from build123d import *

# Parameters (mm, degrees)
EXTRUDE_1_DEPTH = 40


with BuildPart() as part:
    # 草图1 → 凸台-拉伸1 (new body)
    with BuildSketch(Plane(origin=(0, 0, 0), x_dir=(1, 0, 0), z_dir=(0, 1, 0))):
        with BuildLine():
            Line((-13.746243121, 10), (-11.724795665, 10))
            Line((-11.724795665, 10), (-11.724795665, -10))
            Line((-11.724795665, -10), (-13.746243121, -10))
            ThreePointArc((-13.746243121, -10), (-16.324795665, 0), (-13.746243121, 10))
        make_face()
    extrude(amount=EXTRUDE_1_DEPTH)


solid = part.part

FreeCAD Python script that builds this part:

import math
import FreeCAD as App
import Part
import Sketcher
from FreeCAD import Vector
Q = App.Units.Quantity

doc = App.newDocument("Part")
body = doc.addObject("PartDesign::Body", "Body")

# Sketch on XZ plane
sketch1 = body.newObject("Sketcher::SketchObject", "Sketch")
sketch1.AttachmentSupport = (doc.getObject("XZ_Plane"), [""])
sketch1.MapMode = "FlatFace"
sketch1.addGeometry([
    Part.LineSegment(Vector(-11.7, -10, 0), Vector(-13.7, -10, 0)),
    Part.ArcOfCircle(Part.Circle(Vector(4.4, 0, 0), Vector(0, 0, 1), 20.7), math.radians(151), math.radians(209)),
    Part.LineSegment(Vector(-13.7, 10, 0), Vector(-11.7, 10, 0)),
    Part.LineSegment(Vector(-11.7, 10, 0), Vector(-11.7, -10, 0)),
], False)
sketch1.addConstraint([
    Sketcher.Constraint("Coincident", 0, 2, 1, 2),
    Sketcher.Constraint("Coincident", 1, 1, 2, 1),
    Sketcher.Constraint("Coincident", 2, 2, 3, 1),
    Sketcher.Constraint("Coincident", 3, 2, 0, 1),
    Sketcher.Constraint("Horizontal", 0),
    Sketcher.Constraint("Horizontal", 2),
    Sketcher.Constraint("Vertical", 3),
    Sketcher.Constraint("Symmetric", 0, 2, 1, 1, -1),
    Sketcher.Constraint("DistanceY", 3, 2, 3, 1, Q("20 mm")),
    Sketcher.Constraint("Radius", 1, Q("20.68 mm")),
    Sketcher.Constraint("DistanceX", 2, 2, 1, 3, Q("16.08 mm")),
    Sketcher.Constraint("DistanceX", -1, 1, 1, 3, Q("4.355204 mm")),
])
pad1 = body.newObject("PartDesign::Pad", "Pad")
pad1.Profile = sketch1
pad1.Length = 40
pad1.Reversed = True

doc.recompute()
